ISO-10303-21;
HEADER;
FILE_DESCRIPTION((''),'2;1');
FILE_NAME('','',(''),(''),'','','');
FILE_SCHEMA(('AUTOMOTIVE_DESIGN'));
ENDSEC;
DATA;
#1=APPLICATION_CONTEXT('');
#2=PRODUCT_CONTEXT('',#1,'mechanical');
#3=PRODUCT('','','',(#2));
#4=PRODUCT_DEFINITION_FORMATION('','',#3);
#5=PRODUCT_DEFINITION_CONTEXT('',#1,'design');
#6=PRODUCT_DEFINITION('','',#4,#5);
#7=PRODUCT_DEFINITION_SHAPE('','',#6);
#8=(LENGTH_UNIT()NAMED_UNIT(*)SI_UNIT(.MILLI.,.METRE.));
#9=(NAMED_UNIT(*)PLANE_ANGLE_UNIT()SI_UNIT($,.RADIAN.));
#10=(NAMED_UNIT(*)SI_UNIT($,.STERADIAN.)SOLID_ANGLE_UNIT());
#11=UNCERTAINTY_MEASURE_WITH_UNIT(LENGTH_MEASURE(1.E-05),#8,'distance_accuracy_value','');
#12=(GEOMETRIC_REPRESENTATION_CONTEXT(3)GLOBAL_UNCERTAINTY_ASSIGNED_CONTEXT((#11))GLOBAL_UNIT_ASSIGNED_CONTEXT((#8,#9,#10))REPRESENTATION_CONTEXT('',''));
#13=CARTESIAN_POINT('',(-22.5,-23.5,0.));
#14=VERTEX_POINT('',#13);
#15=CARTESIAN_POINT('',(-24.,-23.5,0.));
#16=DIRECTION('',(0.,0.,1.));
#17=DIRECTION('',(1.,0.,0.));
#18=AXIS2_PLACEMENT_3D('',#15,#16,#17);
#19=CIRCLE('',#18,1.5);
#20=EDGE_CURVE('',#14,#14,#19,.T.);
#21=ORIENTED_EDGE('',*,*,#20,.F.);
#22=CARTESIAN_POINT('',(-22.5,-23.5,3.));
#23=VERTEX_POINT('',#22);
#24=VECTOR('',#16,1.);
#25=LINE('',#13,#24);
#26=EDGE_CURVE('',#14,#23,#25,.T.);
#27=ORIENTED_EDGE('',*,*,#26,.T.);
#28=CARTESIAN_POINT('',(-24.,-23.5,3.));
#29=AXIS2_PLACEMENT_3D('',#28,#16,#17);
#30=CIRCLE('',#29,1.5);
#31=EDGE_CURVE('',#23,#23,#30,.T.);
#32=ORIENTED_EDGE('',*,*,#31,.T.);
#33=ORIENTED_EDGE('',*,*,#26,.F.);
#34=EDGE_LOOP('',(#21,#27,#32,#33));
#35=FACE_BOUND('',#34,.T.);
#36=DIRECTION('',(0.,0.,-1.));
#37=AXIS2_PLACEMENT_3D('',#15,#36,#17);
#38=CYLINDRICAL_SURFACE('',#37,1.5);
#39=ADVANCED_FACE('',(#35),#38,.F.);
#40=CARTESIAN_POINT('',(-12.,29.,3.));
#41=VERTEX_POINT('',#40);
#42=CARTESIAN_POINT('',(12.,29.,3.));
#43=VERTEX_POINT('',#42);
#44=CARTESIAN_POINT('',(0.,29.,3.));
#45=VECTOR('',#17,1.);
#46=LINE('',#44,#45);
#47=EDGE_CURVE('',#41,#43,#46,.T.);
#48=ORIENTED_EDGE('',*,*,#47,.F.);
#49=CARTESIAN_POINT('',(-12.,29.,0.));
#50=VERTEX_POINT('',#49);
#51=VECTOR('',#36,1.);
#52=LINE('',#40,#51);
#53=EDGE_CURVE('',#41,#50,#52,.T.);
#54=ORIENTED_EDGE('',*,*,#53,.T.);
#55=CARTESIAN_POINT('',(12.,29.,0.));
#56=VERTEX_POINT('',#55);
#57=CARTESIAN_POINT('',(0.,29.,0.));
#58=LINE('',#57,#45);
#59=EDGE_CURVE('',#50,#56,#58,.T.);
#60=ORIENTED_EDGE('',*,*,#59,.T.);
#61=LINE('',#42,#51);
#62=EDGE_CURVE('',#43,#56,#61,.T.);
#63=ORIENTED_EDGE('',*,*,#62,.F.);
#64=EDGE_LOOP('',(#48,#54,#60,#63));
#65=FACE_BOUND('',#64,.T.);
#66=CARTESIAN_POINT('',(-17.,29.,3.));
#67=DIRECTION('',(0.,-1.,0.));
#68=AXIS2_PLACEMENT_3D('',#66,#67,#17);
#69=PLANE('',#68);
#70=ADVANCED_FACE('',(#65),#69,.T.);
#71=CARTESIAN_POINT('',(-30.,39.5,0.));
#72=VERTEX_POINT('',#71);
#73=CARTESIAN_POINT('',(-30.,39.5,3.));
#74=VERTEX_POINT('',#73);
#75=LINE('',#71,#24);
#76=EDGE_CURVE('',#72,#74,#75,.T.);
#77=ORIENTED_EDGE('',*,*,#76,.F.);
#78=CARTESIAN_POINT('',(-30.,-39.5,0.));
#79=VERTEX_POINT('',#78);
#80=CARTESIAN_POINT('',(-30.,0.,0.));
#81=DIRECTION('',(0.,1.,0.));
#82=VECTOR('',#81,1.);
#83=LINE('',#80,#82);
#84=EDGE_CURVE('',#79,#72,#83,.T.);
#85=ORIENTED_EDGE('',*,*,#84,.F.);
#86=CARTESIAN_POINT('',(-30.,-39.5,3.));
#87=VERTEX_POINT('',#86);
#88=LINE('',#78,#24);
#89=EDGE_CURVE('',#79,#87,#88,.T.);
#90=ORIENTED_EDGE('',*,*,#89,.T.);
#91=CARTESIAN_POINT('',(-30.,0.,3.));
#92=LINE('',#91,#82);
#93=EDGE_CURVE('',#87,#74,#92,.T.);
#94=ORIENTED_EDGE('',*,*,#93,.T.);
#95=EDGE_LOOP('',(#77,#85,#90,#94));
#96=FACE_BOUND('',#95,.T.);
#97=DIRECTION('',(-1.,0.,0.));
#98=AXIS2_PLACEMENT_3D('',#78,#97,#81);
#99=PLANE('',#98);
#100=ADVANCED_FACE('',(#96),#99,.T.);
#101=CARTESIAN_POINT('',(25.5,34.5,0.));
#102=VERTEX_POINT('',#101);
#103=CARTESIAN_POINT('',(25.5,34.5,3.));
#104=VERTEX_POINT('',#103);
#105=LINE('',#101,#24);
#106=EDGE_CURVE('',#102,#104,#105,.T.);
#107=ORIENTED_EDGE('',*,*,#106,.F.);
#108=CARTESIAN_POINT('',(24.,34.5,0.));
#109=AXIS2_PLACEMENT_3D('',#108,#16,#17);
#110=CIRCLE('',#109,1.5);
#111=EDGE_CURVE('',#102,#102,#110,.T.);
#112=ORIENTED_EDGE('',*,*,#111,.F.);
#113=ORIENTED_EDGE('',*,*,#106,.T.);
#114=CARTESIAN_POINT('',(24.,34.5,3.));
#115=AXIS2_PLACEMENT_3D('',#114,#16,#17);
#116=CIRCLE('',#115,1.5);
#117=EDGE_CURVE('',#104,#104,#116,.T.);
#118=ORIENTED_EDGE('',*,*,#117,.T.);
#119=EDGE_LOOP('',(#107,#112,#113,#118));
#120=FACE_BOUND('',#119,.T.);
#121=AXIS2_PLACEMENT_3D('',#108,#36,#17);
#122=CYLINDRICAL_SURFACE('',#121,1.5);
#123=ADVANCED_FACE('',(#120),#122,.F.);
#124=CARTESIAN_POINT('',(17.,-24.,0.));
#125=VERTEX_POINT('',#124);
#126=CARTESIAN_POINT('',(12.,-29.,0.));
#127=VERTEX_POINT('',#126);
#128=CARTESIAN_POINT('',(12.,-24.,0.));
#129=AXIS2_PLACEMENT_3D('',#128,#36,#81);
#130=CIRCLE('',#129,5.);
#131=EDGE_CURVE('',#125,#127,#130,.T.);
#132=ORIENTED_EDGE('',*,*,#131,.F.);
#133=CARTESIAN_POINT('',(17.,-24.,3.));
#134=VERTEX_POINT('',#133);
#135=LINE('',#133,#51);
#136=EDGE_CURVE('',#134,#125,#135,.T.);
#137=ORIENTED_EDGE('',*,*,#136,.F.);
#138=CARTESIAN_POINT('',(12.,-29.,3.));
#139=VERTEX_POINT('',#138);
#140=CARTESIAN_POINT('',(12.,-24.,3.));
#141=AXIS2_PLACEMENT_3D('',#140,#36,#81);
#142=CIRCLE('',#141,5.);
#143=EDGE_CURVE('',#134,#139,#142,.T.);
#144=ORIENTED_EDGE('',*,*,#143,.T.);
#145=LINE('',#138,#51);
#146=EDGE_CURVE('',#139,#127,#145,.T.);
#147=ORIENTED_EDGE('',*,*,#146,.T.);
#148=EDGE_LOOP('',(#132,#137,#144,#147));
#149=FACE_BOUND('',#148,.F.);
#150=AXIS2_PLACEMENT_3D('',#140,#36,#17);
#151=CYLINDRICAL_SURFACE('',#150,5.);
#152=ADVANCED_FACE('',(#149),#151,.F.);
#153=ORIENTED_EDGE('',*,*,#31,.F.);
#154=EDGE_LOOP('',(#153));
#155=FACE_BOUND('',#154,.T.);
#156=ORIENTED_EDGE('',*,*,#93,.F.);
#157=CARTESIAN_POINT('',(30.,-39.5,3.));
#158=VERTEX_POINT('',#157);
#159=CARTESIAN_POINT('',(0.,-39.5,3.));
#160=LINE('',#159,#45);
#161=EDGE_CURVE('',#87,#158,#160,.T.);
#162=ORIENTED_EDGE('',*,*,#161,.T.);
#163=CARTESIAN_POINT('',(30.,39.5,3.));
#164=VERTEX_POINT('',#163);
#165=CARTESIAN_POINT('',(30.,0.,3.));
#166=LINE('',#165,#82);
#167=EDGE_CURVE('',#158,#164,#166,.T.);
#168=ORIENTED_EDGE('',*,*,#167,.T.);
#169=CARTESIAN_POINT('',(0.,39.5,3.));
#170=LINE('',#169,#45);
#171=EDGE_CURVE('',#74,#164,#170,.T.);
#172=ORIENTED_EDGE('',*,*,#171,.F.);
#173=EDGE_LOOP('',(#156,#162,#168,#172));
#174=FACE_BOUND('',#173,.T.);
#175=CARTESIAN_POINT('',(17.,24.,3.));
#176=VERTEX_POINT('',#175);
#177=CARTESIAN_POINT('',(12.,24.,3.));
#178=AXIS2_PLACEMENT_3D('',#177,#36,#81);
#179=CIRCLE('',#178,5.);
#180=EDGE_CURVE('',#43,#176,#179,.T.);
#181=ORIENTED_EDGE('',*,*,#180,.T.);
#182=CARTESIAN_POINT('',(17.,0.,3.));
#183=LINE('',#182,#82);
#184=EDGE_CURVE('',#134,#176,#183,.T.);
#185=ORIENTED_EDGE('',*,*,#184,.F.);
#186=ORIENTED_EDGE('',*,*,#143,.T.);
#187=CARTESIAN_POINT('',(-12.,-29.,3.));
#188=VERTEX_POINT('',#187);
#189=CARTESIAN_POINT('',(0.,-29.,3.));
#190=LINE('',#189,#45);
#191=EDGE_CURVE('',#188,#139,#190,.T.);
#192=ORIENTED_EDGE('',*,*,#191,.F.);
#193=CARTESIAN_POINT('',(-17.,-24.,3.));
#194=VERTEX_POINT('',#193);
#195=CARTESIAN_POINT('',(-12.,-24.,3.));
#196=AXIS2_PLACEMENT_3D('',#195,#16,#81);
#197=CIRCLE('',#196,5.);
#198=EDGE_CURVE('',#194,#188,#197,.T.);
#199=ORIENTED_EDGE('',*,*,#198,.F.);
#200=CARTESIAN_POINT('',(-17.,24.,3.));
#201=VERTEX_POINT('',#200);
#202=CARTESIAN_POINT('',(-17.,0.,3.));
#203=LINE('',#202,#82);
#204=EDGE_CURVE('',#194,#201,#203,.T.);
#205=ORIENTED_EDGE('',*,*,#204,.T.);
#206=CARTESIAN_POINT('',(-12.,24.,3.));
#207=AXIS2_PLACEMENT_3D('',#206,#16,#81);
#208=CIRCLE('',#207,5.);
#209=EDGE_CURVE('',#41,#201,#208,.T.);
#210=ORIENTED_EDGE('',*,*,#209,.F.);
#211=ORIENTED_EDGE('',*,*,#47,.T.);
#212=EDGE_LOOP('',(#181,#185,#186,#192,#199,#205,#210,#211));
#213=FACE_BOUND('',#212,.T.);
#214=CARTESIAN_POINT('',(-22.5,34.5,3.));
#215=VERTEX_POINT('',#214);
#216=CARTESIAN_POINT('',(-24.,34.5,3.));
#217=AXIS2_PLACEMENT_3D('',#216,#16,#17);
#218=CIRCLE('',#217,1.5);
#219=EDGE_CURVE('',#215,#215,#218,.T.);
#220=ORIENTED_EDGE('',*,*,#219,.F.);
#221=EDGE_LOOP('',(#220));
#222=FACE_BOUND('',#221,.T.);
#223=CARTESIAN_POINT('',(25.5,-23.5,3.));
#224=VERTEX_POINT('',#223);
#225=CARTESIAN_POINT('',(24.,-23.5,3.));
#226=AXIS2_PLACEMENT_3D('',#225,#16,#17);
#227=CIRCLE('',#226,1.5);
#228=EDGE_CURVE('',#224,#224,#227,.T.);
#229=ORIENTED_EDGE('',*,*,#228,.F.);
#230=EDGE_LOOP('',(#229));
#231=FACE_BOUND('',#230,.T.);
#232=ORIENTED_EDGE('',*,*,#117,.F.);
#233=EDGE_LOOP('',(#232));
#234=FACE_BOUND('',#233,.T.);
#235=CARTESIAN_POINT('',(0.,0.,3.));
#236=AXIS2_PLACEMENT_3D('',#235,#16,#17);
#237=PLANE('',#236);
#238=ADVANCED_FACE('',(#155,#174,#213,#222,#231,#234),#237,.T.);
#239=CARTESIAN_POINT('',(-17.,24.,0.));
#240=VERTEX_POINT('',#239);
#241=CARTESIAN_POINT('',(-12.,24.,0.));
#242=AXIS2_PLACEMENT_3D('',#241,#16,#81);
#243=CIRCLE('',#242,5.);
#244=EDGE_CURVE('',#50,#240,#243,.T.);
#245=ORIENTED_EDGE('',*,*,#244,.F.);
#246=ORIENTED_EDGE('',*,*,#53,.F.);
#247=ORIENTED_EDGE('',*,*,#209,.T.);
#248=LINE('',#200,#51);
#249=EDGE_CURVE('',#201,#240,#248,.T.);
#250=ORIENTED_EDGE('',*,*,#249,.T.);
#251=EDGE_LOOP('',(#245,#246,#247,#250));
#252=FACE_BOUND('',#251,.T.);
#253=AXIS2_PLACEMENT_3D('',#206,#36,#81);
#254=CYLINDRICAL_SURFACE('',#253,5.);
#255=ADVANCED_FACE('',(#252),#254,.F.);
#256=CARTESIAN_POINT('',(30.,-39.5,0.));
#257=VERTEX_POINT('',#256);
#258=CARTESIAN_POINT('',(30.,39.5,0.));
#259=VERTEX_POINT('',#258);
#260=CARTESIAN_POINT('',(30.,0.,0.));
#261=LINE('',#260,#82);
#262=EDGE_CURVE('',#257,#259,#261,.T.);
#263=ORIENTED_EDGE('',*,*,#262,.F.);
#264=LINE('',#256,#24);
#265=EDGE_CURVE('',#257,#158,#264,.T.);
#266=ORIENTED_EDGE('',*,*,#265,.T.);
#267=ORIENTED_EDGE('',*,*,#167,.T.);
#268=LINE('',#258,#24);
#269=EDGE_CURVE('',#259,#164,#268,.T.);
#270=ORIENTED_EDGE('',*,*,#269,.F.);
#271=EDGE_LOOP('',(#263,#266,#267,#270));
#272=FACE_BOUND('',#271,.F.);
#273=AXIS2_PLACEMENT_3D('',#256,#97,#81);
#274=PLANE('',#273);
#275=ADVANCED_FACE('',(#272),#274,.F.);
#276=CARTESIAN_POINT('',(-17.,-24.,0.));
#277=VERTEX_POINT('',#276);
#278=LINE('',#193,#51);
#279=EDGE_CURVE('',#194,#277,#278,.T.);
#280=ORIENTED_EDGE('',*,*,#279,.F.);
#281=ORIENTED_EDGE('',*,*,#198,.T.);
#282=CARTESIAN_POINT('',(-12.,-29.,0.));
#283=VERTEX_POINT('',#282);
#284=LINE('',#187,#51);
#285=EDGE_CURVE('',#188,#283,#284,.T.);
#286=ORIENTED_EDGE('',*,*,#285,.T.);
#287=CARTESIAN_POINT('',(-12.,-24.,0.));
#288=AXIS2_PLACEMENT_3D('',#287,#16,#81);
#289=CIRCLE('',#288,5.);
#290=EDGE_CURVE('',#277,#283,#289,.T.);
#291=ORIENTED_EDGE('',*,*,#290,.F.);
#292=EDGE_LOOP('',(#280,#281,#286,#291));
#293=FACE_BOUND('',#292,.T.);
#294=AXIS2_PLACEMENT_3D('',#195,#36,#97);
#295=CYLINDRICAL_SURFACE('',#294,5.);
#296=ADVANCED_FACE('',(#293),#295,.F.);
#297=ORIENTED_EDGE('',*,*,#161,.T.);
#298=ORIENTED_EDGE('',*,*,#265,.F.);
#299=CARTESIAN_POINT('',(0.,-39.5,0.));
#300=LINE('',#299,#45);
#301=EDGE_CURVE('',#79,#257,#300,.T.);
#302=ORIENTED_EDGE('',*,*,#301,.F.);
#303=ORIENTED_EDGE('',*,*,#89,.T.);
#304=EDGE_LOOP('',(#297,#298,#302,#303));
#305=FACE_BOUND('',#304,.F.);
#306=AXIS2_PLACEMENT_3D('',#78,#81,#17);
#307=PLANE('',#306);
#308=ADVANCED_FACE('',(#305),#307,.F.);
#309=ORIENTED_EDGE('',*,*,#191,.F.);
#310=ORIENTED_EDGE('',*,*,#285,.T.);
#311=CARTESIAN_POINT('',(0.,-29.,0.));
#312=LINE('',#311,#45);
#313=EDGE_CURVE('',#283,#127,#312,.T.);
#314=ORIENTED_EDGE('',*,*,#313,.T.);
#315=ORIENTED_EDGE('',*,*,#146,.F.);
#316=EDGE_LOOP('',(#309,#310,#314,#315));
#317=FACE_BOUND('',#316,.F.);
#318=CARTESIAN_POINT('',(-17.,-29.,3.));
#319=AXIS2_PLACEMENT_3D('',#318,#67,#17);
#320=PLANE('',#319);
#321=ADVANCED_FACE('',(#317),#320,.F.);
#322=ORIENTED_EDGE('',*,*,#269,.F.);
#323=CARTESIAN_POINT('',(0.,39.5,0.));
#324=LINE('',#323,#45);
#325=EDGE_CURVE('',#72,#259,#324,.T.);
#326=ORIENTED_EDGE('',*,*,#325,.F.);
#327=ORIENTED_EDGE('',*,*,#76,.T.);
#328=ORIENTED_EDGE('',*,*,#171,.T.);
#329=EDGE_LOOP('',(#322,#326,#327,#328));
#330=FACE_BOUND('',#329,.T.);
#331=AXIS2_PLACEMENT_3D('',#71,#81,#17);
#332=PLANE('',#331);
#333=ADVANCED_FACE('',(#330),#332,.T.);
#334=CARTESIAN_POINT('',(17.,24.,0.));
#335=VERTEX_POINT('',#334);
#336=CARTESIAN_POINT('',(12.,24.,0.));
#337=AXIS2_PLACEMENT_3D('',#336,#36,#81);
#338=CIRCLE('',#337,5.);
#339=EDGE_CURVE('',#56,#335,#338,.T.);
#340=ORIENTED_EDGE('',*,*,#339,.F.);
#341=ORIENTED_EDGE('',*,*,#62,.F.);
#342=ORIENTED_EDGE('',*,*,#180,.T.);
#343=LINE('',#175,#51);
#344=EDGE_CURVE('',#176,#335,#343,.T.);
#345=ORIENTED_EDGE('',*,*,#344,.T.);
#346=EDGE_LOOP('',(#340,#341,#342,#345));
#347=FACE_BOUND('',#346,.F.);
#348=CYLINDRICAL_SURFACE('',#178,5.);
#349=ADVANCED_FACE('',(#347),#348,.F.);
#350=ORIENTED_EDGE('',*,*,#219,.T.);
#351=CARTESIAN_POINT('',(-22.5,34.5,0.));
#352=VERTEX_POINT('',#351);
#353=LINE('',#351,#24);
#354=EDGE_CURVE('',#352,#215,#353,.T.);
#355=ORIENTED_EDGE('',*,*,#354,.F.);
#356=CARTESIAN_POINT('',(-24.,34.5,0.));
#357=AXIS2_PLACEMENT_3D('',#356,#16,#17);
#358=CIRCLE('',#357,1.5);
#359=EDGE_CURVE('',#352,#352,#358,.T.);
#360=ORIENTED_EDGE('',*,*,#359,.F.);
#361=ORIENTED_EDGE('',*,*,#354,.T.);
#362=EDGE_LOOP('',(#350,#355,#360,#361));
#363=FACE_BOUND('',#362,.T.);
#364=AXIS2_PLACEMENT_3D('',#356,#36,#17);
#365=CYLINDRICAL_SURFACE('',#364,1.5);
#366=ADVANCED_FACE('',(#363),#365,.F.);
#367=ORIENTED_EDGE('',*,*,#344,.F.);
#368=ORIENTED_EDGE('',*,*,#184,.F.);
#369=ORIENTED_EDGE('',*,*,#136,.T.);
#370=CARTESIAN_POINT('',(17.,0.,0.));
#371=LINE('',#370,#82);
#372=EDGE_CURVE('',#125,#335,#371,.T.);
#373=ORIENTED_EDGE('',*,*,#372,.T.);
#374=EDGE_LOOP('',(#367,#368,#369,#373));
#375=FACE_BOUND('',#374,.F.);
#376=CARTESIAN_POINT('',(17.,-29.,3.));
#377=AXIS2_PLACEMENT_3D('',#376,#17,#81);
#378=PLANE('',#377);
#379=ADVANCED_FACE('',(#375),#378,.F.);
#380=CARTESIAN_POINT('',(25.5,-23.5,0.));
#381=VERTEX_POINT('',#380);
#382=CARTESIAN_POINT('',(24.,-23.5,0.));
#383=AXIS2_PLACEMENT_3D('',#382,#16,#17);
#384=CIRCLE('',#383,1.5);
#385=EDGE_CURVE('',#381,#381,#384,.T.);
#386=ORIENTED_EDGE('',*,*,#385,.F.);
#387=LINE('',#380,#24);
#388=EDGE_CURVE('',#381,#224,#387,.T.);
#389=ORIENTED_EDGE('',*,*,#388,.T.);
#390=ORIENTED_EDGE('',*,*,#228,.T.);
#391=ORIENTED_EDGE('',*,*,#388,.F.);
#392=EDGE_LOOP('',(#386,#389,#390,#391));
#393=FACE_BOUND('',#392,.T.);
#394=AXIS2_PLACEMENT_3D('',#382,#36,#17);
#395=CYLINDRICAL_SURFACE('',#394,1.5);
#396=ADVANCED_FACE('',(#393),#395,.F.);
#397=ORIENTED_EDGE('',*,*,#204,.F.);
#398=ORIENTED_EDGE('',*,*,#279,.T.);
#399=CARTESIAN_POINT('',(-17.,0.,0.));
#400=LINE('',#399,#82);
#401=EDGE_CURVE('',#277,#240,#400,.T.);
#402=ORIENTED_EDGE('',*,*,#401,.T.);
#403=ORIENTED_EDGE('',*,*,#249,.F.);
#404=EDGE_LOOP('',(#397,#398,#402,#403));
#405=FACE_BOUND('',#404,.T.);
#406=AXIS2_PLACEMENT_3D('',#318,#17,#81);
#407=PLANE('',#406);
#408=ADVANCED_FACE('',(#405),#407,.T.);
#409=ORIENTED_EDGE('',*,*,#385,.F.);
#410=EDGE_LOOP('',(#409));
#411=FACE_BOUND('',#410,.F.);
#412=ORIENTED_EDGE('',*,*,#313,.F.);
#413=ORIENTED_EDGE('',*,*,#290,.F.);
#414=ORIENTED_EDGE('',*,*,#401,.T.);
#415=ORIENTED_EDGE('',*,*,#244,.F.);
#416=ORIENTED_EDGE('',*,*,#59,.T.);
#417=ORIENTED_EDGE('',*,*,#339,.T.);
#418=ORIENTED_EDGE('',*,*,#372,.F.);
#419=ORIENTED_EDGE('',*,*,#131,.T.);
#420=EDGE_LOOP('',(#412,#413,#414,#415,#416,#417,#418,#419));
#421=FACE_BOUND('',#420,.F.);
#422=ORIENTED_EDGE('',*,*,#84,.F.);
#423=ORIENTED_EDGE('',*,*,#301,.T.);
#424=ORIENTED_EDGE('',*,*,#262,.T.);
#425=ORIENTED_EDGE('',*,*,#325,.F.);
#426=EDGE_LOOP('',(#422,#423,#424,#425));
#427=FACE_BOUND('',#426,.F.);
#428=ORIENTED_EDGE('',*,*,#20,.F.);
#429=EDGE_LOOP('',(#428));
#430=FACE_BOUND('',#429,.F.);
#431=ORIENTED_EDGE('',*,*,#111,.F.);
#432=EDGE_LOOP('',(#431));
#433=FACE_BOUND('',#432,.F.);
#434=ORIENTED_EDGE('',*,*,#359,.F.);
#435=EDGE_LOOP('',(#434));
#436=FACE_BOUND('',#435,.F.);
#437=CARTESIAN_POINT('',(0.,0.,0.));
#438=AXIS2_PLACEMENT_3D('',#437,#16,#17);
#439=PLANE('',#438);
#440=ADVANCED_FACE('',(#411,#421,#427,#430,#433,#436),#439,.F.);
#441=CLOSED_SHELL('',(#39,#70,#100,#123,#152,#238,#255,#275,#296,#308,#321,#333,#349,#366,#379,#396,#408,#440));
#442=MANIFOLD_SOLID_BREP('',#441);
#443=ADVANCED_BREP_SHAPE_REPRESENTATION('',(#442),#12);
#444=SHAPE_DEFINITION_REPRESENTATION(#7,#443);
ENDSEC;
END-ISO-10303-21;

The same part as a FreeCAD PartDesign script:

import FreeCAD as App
import Part
import Sketcher

V = App.Vector
Q = App.Units.Quantity


def edges_at(feature, points):
    """Names of the edges that pass closest to the given points."""
    edges = feature.Shape.Edges
    near = lambda p: min(range(len(edges)), key=lambda i: edges[i].distToShape(Part.Vertex(*p))[0])
    return sorted({f"Edge{near(p) + 1}" for p in points})

doc = App.newDocument("Part")
body = doc.addObject("PartDesign::Body", "Body")

# Sketch on XY plane
sketch1 = doc.addObject("Sketcher::SketchObject", "Sketch")
body.addObject(sketch1)
sketch1.AttachmentSupport = (doc.XY_Plane, [""])
sketch1.MapMode = "FlatFace"
sketch1.addGeometry([
    Part.LineSegment(V(-30, 39.5, 0), V(-30, -39.5, 0)),  # 0
    Part.LineSegment(V(-30, -39.5, 0), V(30, -39.5, 0)),  # 1
    Part.LineSegment(V(30, -39.5, 0), V(30, 39.5, 0)),  # 2
    Part.LineSegment(V(30, 39.5, 0), V(-30, 39.5, 0)),  # 3
    Part.Circle(V(-24, -23.5, 0), V(0, 0, 1), 1.5),  # 4
    Part.Circle(V(24, -23.5, 0), V(0, 0, 1), 1.5),  # 5
    Part.Circle(V(-24, 34.5, 0), V(0, 0, 1), 1.5),  # 6
    Part.Circle(V(24, 34.5, 0), V(0, 0, 1), 1.5),  # 7
], False)
sketch1.addConstraint([
    Sketcher.Constraint("Coincident", 0, 2, 1, 1),
    Sketcher.Constraint("Coincident", 1, 2, 2, 1),
    Sketcher.Constraint("Coincident", 2, 2, 3, 1),
    Sketcher.Constraint("Coincident", 3, 2, 0, 1),
    Sketcher.Constraint("Vertical", 0),
    Sketcher.Constraint("Horizontal", 1),
    Sketcher.Constraint("Vertical", 2),
    Sketcher.Constraint("Horizontal", 3),
    Sketcher.Constraint("Equal", 4, 5),
    Sketcher.Constraint("Equal", 5, 6),
    Sketcher.Constraint("Equal", 6, 7),
    Sketcher.Constraint("Symmetric", 0, 2, 2, 2, -1, 1),
    Sketcher.Constraint("Symmetric", 4, 3, 5, 3, -2),
    Sketcher.Constraint("Symmetric", 6, 3, 7, 3, -2),
    Sketcher.Constraint("Vertical", 4, 3, 6, 3),
    Sketcher.Constraint("Diameter", 4, Q("3 mm")),
    Sketcher.Constraint("DistanceX", 1, 1, 1, 2, Q("60 mm")),
    Sketcher.Constraint("DistanceY", 0, 2, 0, 1, Q("79 mm")),
    Sketcher.Constraint("DistanceX", 4, 3, -1, 1, Q("24 mm")),
    Sketcher.Constraint("DistanceY", 4, 3, 6, 3, Q("58 mm")),
    Sketcher.Constraint("DistanceY", 0, 2, 4, 3, Q("16 mm")),
])
pad1 = doc.addObject("PartDesign::Pad", "Pad")
body.addObject(pad1)
pad1.Profile = sketch1
pad1.Length = 3

# Sketch on XY plane
sketch2 = doc.addObject("Sketcher::SketchObject", "Sketch001")
body.addObject(sketch2)
sketch2.AttachmentSupport = (doc.XY_Plane, [""])
sketch2.MapMode = "FlatFace"
sketch2.AttachmentOffset = App.Placement(V(0, 0, 3), App.Rotation())
sketch2.addGeometry([
    Part.LineSegment(V(-17, 29, 0), V(-17, -29, 0)),
    Part.LineSegment(V(-17, -29, 0), V(17, -29, 0)),
    Part.LineSegment(V(17, -29, 0), V(17, 29, 0)),
    Part.LineSegment(V(17, 29, 0), V(-17, 29, 0)),
], False)
sketch2.addConstraint([
    Sketcher.Constraint("Coincident", 0, 2, 1, 1),
    Sketcher.Constraint("Coincident", 1, 2, 2, 1),
    Sketcher.Constraint("Coincident", 2, 2, 3, 1),
    Sketcher.Constraint("Coincident", 3, 2, 0, 1),
    Sketcher.Constraint("Vertical", 0),
    Sketcher.Constraint("Horizontal", 1),
    Sketcher.Constraint("Vertical", 2),
    Sketcher.Constraint("Horizontal", 3),
    Sketcher.Constraint("Symmetric", 0, 2, 2, 2, -1, 1),
    Sketcher.Constraint("DistanceX", 1, 1, 1, 2, Q("34 mm")),
    Sketcher.Constraint("DistanceY", 0, 2, 0, 1, Q("58 mm")),
])
pocket1 = doc.addObject("PartDesign::Pocket", "Pocket")
body.addObject(pocket1)
pocket1.Profile = sketch2
pocket1.Type = "ThroughAll"
doc.recompute()

fillet = doc.addObject("PartDesign::Fillet", "Fillet")
body.addObject(fillet)
fillet.Base = (pocket1, edges_at(pocket1, [(-17, 29, 1.5)]))
fillet.Radius = 5
doc.recompute()

fillet2 = doc.addObject("PartDesign::Fillet", "Fillet001")
body.addObject(fillet2)
fillet2.Base = (fillet, edges_at(fillet, [(-17, -29, 1.5), (17, -29, 1.5), (17, 29, 1.5)]))
fillet2.Radius = 5

doc.recompute()
